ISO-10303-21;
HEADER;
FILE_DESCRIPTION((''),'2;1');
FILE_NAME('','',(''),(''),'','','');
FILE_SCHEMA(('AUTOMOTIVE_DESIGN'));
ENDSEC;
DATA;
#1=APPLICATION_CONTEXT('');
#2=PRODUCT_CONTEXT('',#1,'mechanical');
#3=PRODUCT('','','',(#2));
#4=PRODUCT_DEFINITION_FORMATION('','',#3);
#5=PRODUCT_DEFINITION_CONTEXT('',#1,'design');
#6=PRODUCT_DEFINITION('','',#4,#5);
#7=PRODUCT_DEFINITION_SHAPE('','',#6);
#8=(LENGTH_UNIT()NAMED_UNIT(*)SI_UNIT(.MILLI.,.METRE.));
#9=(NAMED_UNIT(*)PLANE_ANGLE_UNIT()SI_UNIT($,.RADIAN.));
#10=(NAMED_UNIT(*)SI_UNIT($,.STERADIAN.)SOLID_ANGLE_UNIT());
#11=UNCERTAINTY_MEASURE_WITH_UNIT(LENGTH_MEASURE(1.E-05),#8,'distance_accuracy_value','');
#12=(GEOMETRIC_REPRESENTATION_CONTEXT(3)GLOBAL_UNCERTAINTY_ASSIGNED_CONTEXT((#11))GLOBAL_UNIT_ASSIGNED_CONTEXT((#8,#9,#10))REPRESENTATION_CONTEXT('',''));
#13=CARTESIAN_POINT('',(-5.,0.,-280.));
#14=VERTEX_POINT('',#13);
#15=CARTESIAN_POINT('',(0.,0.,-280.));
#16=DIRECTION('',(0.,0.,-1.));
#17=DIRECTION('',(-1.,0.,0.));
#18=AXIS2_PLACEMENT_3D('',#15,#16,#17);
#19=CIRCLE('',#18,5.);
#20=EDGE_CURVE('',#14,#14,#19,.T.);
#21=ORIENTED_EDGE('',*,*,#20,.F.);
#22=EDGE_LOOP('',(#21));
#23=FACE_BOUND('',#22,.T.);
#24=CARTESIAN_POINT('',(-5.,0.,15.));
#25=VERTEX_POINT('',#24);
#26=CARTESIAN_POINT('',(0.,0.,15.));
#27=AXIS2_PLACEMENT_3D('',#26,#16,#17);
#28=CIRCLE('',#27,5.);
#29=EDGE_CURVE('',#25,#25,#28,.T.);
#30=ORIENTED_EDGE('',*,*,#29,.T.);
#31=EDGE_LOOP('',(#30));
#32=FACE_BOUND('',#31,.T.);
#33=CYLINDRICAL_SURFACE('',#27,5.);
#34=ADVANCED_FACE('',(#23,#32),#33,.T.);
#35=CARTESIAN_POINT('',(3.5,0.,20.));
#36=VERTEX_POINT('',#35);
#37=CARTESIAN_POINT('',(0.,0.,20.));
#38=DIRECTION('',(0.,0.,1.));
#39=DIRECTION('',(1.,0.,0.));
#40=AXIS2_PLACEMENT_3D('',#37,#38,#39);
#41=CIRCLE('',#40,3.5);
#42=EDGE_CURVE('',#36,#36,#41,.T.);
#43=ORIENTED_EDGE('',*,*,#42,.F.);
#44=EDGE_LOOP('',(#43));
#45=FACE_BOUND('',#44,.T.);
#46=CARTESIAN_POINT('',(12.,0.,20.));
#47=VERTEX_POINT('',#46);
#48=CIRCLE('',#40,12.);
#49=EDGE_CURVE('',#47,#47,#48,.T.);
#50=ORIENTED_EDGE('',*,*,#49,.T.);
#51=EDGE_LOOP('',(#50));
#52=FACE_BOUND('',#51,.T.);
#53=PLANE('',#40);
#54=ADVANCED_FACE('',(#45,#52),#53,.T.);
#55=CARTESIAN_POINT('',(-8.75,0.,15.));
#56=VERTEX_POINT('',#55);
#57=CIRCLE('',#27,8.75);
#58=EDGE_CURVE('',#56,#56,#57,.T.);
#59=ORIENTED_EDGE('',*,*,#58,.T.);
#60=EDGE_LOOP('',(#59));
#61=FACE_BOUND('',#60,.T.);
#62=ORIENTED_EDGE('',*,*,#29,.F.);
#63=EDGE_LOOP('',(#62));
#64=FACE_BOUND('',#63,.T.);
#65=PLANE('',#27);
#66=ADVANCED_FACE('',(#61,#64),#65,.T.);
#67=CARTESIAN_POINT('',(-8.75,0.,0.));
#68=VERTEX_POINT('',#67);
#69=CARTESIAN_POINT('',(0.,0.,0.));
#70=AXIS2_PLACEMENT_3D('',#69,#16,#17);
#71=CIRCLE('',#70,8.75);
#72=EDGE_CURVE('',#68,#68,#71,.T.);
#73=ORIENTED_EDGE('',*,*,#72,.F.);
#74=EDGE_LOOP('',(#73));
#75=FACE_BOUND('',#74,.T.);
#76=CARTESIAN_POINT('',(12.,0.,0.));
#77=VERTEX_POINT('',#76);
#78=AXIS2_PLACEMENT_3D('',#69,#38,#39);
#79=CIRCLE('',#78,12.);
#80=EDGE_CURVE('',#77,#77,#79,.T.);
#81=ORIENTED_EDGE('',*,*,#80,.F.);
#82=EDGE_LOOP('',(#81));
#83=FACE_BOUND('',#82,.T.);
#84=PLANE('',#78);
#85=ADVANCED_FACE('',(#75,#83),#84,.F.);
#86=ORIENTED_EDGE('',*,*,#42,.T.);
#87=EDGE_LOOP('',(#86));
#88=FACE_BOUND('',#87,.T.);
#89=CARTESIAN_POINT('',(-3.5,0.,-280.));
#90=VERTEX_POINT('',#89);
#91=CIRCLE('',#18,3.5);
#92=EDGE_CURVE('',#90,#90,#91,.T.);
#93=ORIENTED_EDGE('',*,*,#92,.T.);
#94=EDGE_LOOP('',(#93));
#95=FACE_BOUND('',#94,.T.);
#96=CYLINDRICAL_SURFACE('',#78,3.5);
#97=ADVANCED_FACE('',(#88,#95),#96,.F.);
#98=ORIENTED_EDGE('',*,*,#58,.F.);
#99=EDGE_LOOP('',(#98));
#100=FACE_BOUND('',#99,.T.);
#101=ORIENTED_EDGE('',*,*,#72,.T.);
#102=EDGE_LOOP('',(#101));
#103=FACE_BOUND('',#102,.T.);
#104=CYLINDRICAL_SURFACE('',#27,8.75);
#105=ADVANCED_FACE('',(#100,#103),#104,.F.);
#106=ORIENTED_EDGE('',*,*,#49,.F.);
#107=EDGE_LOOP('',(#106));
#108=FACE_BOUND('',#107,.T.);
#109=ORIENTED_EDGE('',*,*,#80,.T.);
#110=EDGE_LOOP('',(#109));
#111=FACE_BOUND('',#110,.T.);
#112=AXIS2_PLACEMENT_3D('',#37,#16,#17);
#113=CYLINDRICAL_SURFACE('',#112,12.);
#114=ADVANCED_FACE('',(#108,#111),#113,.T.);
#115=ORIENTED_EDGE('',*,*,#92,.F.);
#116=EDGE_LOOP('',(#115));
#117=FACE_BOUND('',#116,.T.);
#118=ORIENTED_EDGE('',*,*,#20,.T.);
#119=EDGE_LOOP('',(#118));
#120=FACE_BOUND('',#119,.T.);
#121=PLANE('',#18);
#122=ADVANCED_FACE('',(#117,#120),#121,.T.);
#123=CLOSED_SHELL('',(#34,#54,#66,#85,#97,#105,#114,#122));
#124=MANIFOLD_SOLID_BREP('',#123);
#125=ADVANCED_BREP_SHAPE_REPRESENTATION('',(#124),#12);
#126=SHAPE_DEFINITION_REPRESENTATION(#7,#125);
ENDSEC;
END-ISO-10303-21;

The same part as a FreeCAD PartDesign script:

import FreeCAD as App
import Part
import Sketcher

doc = App.newDocument("Part")
body = doc.addObject("PartDesign::Body", "Body")

# Sketch on XY plane
sketch1 = body.newObject("Sketcher::SketchObject", "Sketch")
sketch1.AttachmentSupport = (doc.getObject("XY_Plane"), [""])
sketch1.MapMode = "FlatFace"
sketch1.addGeometry(Part.Circle(App.Vector(0, 0, 0), App.Vector(0, 0, 1), 12), False)
sketch1.addConstraint([
    Sketcher.Constraint("Coincident", 0, 3, -1, 1),
    Sketcher.Constraint("Diameter", 0, 24.0),
])
pad1 = body.newObject("PartDesign::Pad", "Pad")
pad1.Profile = sketch1
pad1.Length = 20

# Sketch on XY plane
sketch2 = body.newObject("Sketcher::SketchObject", "Sketch001")
sketch2.AttachmentSupport = (doc.getObject("XY_Plane"), [""])
sketch2.MapMode = "FlatFace"
sketch2.addGeometry([
    Part.Circle(App.Vector(0, 0, 0), App.Vector(0, 0, 1), 9),
    Part.Circle(App.Vector(0, 0, 0), App.Vector(0, 0, 1), 5),
], False)
sketch2.addConstraint([
    Sketcher.Constraint("Coincident", 0, 3, -1, 1),
    Sketcher.Constraint("Coincident", 1, 3, -1, 1),
    Sketcher.Constraint("Diameter", 1, 10.0),
    Sketcher.Constraint("Diameter", 0, 17.5),
])
pocket1 = body.newObject("PartDesign::Pocket", "Pocket")
pocket1.Profile = sketch2
pocket1.Length = 15
pocket1.Reversed = True

# Sketch on XY plane
sketch3 = body.newObject("Sketcher::SketchObject", "Sketch002")
sketch3.AttachmentSupport = (doc.getObject("XY_Plane"), [""])
sketch3.MapMode = "FlatFace"
sketch3.AttachmentOffset = App.Placement(App.Vector(0, 0, 20), App.Rotation())
sketch3.addGeometry(Part.Circle(App.Vector(0, 0, 0), App.Vector(0, 0, 1), 3.5), False)
sketch3.addConstraint([
    Sketcher.Constraint("Coincident", 0, 3, -1, 1),
    Sketcher.Constraint("Diameter", 0, 7.0),
])
pocket2 = body.newObject("PartDesign::Pocket", "Pocket001")
pocket2.Profile = sketch3
pocket2.Type = "ThroughAll"

# Sketch on XY plane
sketch4 = body.newObject("Sketcher::SketchObject", "Sketch003")
sketch4.AttachmentSupport = (doc.getObject("XY_Plane"), [""])
sketch4.MapMode = "FlatFace"
sketch4.addGeometry([
    Part.Circle(App.Vector(0, 0, 0), App.Vector(0, 0, 1), 5),
    Part.Circle(App.Vector(0, 0, 0), App.Vector(0, 0, 1), 3.5),
], False)
sketch4.addConstraint([
    Sketcher.Constraint("Coincident", 0, 3, -1, 1),
    Sketcher.Constraint("Coincident", 1, 3, -1, 1),
    Sketcher.Constraint("Diameter", 0, 10.0),
    Sketcher.Constraint("Diameter", 1, 7.0),
])
pad2 = body.newObject("PartDesign::Pad", "Pad001")
pad2.Profile = sketch4
pad2.Length = 280
pad2.Reversed = True

doc.recompute()
